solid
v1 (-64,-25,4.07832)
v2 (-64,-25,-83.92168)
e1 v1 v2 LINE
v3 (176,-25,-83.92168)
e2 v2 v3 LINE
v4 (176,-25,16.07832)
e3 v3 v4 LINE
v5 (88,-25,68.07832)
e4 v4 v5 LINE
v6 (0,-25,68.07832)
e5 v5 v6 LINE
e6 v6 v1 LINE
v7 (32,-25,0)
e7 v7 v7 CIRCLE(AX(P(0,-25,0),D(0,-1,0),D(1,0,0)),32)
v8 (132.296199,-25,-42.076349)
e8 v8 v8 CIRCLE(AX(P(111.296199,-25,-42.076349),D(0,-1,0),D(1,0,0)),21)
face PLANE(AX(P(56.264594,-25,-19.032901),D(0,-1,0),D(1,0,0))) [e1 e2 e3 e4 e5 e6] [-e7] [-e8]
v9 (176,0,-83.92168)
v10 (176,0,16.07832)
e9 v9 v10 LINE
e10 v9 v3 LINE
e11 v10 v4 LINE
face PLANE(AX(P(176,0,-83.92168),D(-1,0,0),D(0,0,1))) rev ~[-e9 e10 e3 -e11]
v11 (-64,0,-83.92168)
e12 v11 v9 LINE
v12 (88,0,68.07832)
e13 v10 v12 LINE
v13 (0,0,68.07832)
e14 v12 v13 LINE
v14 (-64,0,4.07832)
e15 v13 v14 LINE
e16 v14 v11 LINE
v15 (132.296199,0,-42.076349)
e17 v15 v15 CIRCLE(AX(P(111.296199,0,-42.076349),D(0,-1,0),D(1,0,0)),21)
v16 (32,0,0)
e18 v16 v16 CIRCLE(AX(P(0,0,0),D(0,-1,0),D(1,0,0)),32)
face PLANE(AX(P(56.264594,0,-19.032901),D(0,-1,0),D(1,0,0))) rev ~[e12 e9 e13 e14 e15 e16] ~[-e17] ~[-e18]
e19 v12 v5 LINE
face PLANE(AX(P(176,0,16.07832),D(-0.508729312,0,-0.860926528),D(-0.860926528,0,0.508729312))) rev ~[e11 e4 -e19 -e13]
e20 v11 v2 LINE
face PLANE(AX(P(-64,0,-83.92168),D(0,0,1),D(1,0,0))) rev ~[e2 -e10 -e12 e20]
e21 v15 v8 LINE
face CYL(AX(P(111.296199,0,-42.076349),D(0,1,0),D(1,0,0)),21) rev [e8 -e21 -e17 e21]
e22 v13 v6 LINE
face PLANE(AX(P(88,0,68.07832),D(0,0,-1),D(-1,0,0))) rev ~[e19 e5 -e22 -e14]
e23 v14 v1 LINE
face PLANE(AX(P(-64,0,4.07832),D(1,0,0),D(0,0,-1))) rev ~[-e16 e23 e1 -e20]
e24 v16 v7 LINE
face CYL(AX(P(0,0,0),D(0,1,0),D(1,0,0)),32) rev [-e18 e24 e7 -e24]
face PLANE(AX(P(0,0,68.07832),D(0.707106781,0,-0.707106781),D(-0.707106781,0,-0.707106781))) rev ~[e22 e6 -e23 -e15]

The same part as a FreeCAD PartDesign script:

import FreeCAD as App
import Part
import Sketcher
Q = App.Units.Quantity

doc = App.newDocument("Part")
body = doc.addObject("PartDesign::Body", "Body")

# Sketch on XZ plane
sketch1 = body.newObject("Sketcher::SketchObject", "Sketch")
sketch1.AttachmentSupport = (doc.getObject("XZ_Plane"), [""])
sketch1.MapMode = "FlatFace"
sketch1.addGeometry([
    Part.LineSegment(App.Vector(-64, 4, 0), App.Vector(-64, -84, 0)),  # 0
    Part.LineSegment(App.Vector(-64, -84, 0), App.Vector(176, -84, 0)),  # 1
    Part.LineSegment(App.Vector(176, -84, 0), App.Vector(176, 16, 0)),  # 2
    Part.LineSegment(App.Vector(176, 16, 0), App.Vector(88, 68, 0)),  # 3
    Part.LineSegment(App.Vector(88, 68, 0), App.Vector(0, 68, 0)),  # 4
    Part.LineSegment(App.Vector(0, 68, 0), App.Vector(-64, 4, 0)),  # 5
    Part.Circle(App.Vector(111, -42, 0), App.Vector(0, 0, 1), 21),  # 6
    Part.Circle(App.Vector(0, 0, 0), App.Vector(0, 0, 1), 32),  # 7
], False)
sketch1.addConstraint([
    Sketcher.Constraint("Coincident", 0, 2, 1, 1),
    Sketcher.Constraint("Coincident", 1, 2, 2, 1),
    Sketcher.Constraint("Coincident", 2, 2, 3, 1),
    Sketcher.Constraint("Coincident", 3, 2, 4, 1),
    Sketcher.Constraint("Coincident", 4, 2, 5, 1),
    Sketcher.Constraint("Coincident", 5, 2, 0, 1),
    Sketcher.Constraint("Vertical", 0),
    Sketcher.Constraint("Horizontal", 1),
    Sketcher.Constraint("Vertical", 2),
    Sketcher.Constraint("Horizontal", 4),
    Sketcher.Constraint("Coincident", 7, 3, -1, 1),
    Sketcher.Constraint("PointOnObject", 4, 2, -2),
    Sketcher.Constraint("Equal", 4, 0),
    Sketcher.Constraint("Diameter", 6, 42.0),
    Sketcher.Constraint("Diameter", 7, 64.0),
    Sketcher.Constraint("DistanceX", 1, 1, 1, 2, 240.0),
    Sketcher.Constraint("DistanceX", 4, 2, 4, 1, 88.0),
    Sketcher.Constraint("DistanceY", 2, 1, 2, 2, 100.0),
    Sketcher.Constraint("Angle", 5, Q("-135 deg")),
    Sketcher.Constraint("DistanceX", 0, 2, -1, 1, 64.0),
    Sketcher.Constraint("DistanceX", -1, 1, 6, 3, 111.296199),
    Sketcher.Constraint("DistanceY", 6, 3, -1, 1, 42.076349),
    Sketcher.Constraint("DistanceY", 0, 2, -1, 1, 83.92168),
])
pad1 = body.newObject("PartDesign::Pad", "Pad")
pad1.Profile = sketch1
pad1.Length = 25

doc.recompute()
